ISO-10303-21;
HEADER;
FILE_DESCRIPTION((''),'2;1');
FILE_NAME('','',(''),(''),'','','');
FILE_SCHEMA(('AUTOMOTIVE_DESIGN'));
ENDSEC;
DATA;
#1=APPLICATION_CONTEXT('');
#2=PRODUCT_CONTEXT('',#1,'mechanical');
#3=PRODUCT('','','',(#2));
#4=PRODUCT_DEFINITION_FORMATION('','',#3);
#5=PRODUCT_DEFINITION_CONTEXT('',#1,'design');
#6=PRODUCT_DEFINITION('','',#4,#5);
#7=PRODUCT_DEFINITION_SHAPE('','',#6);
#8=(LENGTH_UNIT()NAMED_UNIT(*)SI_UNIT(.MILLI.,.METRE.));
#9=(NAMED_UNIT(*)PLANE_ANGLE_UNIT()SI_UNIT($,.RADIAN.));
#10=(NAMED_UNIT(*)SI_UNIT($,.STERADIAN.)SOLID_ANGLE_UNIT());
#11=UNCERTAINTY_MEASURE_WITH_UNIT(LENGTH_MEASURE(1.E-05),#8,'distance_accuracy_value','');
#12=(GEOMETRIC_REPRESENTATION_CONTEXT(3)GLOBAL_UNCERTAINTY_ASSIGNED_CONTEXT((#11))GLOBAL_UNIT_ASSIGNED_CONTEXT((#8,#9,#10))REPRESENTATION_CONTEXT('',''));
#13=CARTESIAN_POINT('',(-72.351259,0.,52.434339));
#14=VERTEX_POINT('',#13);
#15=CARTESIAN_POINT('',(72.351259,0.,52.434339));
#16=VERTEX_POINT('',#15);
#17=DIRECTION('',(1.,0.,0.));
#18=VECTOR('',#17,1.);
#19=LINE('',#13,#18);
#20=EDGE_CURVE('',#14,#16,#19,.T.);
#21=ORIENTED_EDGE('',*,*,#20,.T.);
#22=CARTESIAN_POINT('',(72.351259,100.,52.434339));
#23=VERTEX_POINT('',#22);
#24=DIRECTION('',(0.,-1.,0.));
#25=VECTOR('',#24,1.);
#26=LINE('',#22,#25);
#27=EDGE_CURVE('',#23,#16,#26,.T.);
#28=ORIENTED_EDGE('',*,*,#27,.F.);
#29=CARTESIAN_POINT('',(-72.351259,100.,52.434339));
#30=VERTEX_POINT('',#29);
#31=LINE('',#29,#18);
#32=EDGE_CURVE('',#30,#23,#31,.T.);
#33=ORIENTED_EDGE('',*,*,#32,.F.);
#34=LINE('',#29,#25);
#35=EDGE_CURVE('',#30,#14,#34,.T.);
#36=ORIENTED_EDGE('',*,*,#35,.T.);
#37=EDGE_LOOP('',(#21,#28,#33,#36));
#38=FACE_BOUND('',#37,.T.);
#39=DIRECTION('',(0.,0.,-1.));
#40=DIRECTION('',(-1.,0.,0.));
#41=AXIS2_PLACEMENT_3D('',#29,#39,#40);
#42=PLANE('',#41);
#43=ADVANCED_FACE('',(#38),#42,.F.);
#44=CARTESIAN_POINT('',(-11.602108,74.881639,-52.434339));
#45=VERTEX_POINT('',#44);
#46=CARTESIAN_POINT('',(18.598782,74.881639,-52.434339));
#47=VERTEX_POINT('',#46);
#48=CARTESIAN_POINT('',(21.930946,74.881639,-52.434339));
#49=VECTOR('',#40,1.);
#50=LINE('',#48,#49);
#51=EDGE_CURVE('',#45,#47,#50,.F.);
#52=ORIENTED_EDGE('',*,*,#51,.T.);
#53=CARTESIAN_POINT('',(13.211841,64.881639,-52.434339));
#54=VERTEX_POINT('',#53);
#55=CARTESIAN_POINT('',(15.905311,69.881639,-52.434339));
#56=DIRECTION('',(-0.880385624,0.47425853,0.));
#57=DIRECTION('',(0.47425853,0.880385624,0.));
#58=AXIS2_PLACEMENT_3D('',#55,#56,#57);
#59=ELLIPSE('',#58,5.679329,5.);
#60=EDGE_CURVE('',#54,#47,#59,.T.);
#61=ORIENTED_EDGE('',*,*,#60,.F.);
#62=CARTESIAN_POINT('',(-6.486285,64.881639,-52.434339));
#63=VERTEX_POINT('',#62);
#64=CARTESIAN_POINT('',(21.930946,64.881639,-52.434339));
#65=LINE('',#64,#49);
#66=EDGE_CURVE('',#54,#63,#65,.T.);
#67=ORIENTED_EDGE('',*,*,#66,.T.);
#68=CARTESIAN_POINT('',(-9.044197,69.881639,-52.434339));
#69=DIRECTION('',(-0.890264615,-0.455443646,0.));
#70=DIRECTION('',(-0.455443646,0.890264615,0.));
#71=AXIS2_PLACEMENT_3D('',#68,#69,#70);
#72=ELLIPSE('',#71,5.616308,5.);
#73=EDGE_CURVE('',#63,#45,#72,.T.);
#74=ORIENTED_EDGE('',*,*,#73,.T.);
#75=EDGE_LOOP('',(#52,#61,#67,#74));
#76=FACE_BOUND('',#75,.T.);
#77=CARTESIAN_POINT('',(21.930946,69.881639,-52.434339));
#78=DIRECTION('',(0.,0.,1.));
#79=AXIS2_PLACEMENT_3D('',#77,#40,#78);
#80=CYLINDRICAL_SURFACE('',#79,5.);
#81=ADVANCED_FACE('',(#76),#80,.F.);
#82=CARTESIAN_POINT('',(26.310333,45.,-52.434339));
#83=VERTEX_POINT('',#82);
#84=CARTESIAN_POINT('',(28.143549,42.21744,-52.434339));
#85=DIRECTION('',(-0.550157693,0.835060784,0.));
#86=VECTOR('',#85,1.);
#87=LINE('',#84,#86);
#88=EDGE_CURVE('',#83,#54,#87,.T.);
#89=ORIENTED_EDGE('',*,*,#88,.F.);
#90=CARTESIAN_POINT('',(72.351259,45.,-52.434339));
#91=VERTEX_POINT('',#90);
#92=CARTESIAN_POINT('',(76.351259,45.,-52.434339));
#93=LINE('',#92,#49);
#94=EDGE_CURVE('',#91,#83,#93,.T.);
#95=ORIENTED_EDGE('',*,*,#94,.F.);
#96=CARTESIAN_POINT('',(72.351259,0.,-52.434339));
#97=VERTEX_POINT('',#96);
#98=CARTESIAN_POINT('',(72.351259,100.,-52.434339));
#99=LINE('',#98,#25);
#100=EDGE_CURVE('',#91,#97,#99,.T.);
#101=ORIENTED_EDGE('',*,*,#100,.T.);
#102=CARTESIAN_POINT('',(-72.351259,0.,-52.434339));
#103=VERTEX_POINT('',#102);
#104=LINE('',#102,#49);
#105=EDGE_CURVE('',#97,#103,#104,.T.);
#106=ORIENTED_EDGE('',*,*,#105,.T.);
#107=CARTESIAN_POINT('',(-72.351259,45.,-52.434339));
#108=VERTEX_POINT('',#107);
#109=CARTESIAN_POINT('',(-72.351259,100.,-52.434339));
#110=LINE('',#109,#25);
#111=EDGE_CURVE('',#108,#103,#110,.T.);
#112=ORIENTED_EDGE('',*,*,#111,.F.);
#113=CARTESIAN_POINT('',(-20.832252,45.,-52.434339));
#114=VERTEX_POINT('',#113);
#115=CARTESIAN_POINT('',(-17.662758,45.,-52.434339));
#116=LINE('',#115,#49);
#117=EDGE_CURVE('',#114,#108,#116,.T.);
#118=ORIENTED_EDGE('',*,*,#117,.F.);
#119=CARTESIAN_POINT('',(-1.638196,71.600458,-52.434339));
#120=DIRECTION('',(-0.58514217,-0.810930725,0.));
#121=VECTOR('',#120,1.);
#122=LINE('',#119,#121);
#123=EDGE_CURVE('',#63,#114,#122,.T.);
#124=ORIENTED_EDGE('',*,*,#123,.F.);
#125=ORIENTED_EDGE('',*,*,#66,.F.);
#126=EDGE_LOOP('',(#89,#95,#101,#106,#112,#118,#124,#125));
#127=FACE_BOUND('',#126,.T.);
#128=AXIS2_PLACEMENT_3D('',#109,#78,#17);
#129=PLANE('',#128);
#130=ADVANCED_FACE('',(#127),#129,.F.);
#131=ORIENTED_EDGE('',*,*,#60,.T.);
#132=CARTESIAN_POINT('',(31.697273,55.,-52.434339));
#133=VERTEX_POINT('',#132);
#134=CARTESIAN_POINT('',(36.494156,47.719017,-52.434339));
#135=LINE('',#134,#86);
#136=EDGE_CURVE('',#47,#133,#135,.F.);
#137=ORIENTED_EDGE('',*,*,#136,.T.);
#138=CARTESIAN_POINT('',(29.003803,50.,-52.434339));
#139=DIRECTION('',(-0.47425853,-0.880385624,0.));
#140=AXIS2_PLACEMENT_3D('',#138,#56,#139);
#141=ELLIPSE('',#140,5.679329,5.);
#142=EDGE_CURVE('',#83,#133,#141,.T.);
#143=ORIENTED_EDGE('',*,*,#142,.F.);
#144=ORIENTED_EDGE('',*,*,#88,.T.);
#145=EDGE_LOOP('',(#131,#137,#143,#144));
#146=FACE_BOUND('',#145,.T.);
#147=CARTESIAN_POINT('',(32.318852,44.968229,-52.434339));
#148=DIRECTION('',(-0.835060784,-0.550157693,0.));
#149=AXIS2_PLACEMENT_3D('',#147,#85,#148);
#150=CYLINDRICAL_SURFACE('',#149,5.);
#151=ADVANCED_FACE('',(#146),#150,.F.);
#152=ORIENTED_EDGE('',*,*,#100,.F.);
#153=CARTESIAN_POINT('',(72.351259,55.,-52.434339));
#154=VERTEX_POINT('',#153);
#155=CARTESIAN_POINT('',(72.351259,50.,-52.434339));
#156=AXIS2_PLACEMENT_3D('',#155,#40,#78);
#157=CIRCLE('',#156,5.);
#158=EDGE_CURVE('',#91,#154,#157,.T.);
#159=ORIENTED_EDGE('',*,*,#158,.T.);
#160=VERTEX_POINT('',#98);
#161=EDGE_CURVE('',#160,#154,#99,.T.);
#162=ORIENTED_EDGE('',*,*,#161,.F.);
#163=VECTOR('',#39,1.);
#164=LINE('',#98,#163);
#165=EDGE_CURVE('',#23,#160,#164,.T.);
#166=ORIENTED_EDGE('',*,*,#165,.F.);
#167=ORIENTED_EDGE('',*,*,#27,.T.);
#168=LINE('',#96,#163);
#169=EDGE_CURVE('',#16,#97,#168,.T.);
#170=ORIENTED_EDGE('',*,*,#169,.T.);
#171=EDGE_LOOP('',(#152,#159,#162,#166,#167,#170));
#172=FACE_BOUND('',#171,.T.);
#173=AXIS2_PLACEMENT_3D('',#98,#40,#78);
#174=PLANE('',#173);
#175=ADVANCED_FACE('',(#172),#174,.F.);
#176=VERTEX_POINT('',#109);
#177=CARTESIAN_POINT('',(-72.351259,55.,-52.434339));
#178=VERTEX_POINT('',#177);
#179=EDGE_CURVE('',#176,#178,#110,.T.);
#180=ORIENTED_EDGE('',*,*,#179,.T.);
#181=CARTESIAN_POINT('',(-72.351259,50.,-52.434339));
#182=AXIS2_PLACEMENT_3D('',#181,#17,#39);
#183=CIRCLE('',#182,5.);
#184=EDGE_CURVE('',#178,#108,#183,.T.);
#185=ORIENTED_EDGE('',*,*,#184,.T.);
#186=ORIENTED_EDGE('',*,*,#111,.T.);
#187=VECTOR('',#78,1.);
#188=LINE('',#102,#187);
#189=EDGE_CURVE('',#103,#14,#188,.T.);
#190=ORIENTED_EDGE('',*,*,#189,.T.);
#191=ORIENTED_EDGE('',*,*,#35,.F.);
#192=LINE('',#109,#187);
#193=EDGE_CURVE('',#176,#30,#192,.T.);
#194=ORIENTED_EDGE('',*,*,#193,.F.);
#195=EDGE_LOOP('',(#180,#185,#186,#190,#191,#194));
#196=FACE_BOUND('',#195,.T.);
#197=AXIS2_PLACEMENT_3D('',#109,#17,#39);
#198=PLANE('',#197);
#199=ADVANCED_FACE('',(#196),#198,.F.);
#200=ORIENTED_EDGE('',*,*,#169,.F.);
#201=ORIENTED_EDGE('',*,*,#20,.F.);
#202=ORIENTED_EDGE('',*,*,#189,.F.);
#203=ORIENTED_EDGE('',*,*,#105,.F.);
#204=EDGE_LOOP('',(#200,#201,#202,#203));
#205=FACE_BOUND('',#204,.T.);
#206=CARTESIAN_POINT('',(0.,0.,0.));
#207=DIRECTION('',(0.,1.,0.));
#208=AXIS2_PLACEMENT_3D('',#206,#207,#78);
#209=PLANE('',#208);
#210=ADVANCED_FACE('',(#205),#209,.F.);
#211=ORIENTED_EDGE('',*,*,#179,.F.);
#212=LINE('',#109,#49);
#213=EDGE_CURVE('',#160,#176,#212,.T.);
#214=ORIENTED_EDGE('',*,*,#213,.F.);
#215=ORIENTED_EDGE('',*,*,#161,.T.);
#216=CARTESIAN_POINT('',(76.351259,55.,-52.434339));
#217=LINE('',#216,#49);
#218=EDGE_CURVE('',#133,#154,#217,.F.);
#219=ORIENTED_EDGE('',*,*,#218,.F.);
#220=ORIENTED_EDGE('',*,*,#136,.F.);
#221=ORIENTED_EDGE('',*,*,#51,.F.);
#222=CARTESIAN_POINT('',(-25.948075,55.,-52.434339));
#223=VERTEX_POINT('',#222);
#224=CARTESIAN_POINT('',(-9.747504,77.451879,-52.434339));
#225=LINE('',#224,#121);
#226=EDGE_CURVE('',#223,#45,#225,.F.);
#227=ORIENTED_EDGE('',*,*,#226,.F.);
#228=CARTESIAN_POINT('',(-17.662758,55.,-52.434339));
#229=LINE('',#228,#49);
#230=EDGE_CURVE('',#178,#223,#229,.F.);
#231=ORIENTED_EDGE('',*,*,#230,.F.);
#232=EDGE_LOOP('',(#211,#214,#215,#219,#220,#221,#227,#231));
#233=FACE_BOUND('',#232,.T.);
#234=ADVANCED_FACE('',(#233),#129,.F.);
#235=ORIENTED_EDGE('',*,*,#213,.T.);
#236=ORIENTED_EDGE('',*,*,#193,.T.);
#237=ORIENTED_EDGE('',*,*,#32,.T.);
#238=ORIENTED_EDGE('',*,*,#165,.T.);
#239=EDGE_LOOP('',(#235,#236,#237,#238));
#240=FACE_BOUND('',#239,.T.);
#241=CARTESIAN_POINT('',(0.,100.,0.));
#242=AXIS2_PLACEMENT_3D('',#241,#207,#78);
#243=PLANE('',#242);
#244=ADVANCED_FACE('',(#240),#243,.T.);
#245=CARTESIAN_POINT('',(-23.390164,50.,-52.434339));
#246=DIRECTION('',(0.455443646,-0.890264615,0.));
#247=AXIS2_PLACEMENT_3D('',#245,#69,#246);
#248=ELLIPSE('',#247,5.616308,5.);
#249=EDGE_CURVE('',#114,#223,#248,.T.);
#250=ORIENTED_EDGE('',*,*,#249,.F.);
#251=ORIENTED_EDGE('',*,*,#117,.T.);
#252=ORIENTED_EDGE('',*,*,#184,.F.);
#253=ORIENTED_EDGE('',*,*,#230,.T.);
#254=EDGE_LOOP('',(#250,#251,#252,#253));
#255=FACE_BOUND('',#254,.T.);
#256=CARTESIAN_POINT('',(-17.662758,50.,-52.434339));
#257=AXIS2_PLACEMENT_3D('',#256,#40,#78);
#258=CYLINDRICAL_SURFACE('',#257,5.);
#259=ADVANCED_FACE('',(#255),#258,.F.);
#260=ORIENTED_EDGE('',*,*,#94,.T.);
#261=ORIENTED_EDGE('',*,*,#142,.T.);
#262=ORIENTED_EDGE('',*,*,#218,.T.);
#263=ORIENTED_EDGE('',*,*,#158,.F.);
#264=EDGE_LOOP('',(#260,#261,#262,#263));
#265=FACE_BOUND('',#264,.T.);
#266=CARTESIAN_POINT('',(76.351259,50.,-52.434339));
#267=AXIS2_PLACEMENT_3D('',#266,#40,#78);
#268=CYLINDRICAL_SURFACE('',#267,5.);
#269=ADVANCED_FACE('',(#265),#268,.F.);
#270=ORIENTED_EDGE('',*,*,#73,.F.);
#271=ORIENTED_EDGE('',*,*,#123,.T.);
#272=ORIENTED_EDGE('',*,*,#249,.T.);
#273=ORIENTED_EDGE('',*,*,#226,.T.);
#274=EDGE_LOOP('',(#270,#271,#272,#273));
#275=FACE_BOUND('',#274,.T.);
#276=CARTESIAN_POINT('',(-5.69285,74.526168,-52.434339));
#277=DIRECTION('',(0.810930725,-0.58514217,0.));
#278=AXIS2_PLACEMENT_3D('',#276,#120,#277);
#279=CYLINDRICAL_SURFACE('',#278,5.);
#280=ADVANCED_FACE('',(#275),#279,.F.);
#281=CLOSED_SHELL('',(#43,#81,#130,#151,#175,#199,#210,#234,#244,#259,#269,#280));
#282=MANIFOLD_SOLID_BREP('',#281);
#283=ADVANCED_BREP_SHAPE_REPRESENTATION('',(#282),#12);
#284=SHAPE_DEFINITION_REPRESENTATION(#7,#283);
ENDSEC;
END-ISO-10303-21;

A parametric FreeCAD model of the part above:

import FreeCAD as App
import Part
import Sketcher

V = App.Vector

doc = App.newDocument("Part")
body = doc.addObject("PartDesign::Body", "Body")

sketch1 = doc.addObject("Sketcher::SketchObject", "Sketch")
body.addObject(sketch1)
sketch1.AttachmentSupport = (doc.XZ_Plane, [""])
sketch1.MapMode = "FlatFace"
sketch1.addGeometry([
    Part.LineSegment(V(-72, -52, 0), V(-72, 52, 0)),
    Part.LineSegment(V(-72, 52, 0), V(72, 52, 0)),
    Part.LineSegment(V(72, 52, 0), V(72, -52, 0)),
    Part.LineSegment(V(72, -52, 0), V(-72, -52, 0)),
], False)
sketch1.addConstraint([
    Sketcher.Constraint("Coincident", 0, 2, 1, 1),
    Sketcher.Constraint("Coincident", 1, 2, 2, 1),
    Sketcher.Constraint("Coincident", 2, 2, 3, 1),
    Sketcher.Constraint("Coincident", 3, 2, 0, 1),
    Sketcher.Constraint("Vertical", 0),
    Sketcher.Constraint("Horizontal", 1),
    Sketcher.Constraint("Vertical", 2),
    Sketcher.Constraint("Horizontal", 3),
    Sketcher.Constraint("Symmetric", 0, 2, 2, 2, -1, 1),
    Sketcher.Constraint("DistanceY", 0, 1, 0, 2, 104.868678),
    Sketcher.Constraint("DistanceX", 1, 1, 1, 2, 144.702517),
])
pad1 = doc.addObject("PartDesign::Pad", "Pad")
body.addObject(pad1)
pad1.Profile = sketch1
pad1.Length = 100
pad1.Reversed = True

sketch2 = doc.addObject("Sketcher::SketchObject", "Sketch001")
body.addObject(sketch2)
sketch2.AttachmentSupport = (doc.YZ_Plane, [""])
sketch2.MapMode = "FlatFace"
sketch2.AttachmentOffset = App.Placement(V(0, 0, 72.351259), App.Rotation())
sketch2.addGeometry(Part.Circle(V(50, -52, 0), V(0, 0, 1), 5), False)
sketch2.addConstraint([
    Sketcher.Constraint("Diameter", 0, 10.0),
    Sketcher.Constraint("DistanceX", -1, 1, 0, 3, 50.0),
    Sketcher.Constraint("DistanceY", 0, 3, -1, 1, 52.434339),
])

sketch3 = doc.addObject("Sketcher::SketchObject", "Sketch002")
body.addObject(sketch3)
sketch3.AttachmentSupport = (doc.XY_Plane, [""])
sketch3.MapMode = "FlatFace"
sketch3.AttachmentOffset = App.Placement(V(0, 0, -52.434339), App.Rotation())
sketch3.addGeometry([
    Part.LineSegment(V(72, 50, 0), V(29, 50, 0)),
    Part.LineSegment(V(29, 50, 0), V(16, 70, 0)),
    Part.LineSegment(V(16, 70, 0), V(-9, 70, 0)),
    Part.LineSegment(V(-9, 70, 0), V(-23, 50, 0)),
    Part.LineSegment(V(-23, 50, 0), V(-72, 50, 0)),
], False)
sketch3.addConstraint([
    Sketcher.Constraint("Coincident", 0, 2, 1, 1),
    Sketcher.Constraint("Coincident", 1, 2, 2, 1),
    Sketcher.Constraint("Coincident", 2, 2, 3, 1),
    Sketcher.Constraint("Coincident", 3, 2, 4, 1),
    Sketcher.Constraint("Horizontal", 0),
    Sketcher.Constraint("Horizontal", 2),
    Sketcher.Constraint("Horizontal", 4),
    Sketcher.Constraint("Symmetric", 0, 1, 4, 2, -2),
    Sketcher.Constraint("DistanceY", -1, 1, 0, 1, 50.0),
    Sketcher.Constraint("DistanceX", 2, 2, 0, 2, 38.048),
    Sketcher.Constraint("DistanceX", 0, 2, 0, 1, 43.347455),
    Sketcher.Constraint("DistanceX", 2, 2, 2, 1, 24.949508),
    Sketcher.Constraint("DistanceX", 4, 2, 4, 1, 48.961095),
    Sketcher.Constraint("DistanceX", -1, 1, 0, 1, 72.351259),
    Sketcher.Constraint("DistanceY", -1, 1, 1, 2, 69.881639),
])
doc.recompute()

subtractivepipe = doc.addObject("PartDesign::SubtractivePipe", "SubtractivePipe")
body.addObject(subtractivepipe)
subtractivepipe.Profile = sketch2
subtractivepipe.Spine = (sketch3, ["Edge1", "Edge2", "Edge3", "Edge4", "Edge5"])
subtractivepipe.Transition = "Right corner"

doc.recompute()
